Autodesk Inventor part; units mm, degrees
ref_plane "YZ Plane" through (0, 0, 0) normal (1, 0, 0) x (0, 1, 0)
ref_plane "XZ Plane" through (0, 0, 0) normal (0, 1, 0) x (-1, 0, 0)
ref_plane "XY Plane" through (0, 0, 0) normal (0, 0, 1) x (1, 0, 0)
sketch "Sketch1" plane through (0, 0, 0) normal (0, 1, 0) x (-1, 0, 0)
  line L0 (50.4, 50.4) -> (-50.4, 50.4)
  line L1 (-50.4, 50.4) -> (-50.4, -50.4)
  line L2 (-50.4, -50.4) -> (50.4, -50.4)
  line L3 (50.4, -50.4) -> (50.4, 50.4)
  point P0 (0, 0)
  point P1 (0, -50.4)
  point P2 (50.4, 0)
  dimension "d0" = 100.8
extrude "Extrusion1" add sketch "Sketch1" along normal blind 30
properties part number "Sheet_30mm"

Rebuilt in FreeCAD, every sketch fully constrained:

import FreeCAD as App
import Part
import Sketcher
from FreeCAD import Vector

doc = App.newDocument("Part")
body = doc.addObject("PartDesign::Body", "Body")

# Sketch on XZ plane
sketch1 = doc.addObject("Sketcher::SketchObject", "Sketch")
body.addObject(sketch1)
sketch1.AttachmentSupport = (doc.XZ_Plane, [""])
sketch1.MapMode = "FlatFace"
sketch1.addGeometry(Part.LineSegment(Vector(-50, -50, 0), Vector(-50, 50, 0)), False)
sketch1.addGeometry(Part.LineSegment(Vector(-50, 50, 0), Vector(50, 50, 0)), False)
sketch1.addGeometry(Part.LineSegment(Vector(50, 50, 0), Vector(50, -50, 0)), False)
sketch1.addGeometry(Part.LineSegment(Vector(50, -50, 0), Vector(-50, -50, 0)), False)
sketch1.addConstraint(Sketcher.Constraint("Coincident", 0, 2, 1, 1))
sketch1.addConstraint(Sketcher.Constraint("Coincident", 1, 2, 2, 1))
sketch1.addConstraint(Sketcher.Constraint("Coincident", 2, 2, 3, 1))
sketch1.addConstraint(Sketcher.Constraint("Coincident", 3, 2, 0, 1))
sketch1.addConstraint(Sketcher.Constraint("Vertical", 0))
sketch1.addConstraint(Sketcher.Constraint("Horizontal", 1))
sketch1.addConstraint(Sketcher.Constraint("Vertical", 2))
sketch1.addConstraint(Sketcher.Constraint("Horizontal", 3))
sketch1.addConstraint(Sketcher.Constraint("Symmetric", 0, 2, 2, 2, -1, 1))
sketch1.addConstraint(Sketcher.Constraint("Equal", 3, 0))
sketch1.addConstraint(Sketcher.Constraint("DistanceX", 1, 1, 1, 2, 100.8))
pad1 = doc.addObject("PartDesign::Pad", "Pad")
body.addObject(pad1)
pad1.Profile = sketch1
pad1.Length = 30
pad1.Reversed = True

doc.recompute()
